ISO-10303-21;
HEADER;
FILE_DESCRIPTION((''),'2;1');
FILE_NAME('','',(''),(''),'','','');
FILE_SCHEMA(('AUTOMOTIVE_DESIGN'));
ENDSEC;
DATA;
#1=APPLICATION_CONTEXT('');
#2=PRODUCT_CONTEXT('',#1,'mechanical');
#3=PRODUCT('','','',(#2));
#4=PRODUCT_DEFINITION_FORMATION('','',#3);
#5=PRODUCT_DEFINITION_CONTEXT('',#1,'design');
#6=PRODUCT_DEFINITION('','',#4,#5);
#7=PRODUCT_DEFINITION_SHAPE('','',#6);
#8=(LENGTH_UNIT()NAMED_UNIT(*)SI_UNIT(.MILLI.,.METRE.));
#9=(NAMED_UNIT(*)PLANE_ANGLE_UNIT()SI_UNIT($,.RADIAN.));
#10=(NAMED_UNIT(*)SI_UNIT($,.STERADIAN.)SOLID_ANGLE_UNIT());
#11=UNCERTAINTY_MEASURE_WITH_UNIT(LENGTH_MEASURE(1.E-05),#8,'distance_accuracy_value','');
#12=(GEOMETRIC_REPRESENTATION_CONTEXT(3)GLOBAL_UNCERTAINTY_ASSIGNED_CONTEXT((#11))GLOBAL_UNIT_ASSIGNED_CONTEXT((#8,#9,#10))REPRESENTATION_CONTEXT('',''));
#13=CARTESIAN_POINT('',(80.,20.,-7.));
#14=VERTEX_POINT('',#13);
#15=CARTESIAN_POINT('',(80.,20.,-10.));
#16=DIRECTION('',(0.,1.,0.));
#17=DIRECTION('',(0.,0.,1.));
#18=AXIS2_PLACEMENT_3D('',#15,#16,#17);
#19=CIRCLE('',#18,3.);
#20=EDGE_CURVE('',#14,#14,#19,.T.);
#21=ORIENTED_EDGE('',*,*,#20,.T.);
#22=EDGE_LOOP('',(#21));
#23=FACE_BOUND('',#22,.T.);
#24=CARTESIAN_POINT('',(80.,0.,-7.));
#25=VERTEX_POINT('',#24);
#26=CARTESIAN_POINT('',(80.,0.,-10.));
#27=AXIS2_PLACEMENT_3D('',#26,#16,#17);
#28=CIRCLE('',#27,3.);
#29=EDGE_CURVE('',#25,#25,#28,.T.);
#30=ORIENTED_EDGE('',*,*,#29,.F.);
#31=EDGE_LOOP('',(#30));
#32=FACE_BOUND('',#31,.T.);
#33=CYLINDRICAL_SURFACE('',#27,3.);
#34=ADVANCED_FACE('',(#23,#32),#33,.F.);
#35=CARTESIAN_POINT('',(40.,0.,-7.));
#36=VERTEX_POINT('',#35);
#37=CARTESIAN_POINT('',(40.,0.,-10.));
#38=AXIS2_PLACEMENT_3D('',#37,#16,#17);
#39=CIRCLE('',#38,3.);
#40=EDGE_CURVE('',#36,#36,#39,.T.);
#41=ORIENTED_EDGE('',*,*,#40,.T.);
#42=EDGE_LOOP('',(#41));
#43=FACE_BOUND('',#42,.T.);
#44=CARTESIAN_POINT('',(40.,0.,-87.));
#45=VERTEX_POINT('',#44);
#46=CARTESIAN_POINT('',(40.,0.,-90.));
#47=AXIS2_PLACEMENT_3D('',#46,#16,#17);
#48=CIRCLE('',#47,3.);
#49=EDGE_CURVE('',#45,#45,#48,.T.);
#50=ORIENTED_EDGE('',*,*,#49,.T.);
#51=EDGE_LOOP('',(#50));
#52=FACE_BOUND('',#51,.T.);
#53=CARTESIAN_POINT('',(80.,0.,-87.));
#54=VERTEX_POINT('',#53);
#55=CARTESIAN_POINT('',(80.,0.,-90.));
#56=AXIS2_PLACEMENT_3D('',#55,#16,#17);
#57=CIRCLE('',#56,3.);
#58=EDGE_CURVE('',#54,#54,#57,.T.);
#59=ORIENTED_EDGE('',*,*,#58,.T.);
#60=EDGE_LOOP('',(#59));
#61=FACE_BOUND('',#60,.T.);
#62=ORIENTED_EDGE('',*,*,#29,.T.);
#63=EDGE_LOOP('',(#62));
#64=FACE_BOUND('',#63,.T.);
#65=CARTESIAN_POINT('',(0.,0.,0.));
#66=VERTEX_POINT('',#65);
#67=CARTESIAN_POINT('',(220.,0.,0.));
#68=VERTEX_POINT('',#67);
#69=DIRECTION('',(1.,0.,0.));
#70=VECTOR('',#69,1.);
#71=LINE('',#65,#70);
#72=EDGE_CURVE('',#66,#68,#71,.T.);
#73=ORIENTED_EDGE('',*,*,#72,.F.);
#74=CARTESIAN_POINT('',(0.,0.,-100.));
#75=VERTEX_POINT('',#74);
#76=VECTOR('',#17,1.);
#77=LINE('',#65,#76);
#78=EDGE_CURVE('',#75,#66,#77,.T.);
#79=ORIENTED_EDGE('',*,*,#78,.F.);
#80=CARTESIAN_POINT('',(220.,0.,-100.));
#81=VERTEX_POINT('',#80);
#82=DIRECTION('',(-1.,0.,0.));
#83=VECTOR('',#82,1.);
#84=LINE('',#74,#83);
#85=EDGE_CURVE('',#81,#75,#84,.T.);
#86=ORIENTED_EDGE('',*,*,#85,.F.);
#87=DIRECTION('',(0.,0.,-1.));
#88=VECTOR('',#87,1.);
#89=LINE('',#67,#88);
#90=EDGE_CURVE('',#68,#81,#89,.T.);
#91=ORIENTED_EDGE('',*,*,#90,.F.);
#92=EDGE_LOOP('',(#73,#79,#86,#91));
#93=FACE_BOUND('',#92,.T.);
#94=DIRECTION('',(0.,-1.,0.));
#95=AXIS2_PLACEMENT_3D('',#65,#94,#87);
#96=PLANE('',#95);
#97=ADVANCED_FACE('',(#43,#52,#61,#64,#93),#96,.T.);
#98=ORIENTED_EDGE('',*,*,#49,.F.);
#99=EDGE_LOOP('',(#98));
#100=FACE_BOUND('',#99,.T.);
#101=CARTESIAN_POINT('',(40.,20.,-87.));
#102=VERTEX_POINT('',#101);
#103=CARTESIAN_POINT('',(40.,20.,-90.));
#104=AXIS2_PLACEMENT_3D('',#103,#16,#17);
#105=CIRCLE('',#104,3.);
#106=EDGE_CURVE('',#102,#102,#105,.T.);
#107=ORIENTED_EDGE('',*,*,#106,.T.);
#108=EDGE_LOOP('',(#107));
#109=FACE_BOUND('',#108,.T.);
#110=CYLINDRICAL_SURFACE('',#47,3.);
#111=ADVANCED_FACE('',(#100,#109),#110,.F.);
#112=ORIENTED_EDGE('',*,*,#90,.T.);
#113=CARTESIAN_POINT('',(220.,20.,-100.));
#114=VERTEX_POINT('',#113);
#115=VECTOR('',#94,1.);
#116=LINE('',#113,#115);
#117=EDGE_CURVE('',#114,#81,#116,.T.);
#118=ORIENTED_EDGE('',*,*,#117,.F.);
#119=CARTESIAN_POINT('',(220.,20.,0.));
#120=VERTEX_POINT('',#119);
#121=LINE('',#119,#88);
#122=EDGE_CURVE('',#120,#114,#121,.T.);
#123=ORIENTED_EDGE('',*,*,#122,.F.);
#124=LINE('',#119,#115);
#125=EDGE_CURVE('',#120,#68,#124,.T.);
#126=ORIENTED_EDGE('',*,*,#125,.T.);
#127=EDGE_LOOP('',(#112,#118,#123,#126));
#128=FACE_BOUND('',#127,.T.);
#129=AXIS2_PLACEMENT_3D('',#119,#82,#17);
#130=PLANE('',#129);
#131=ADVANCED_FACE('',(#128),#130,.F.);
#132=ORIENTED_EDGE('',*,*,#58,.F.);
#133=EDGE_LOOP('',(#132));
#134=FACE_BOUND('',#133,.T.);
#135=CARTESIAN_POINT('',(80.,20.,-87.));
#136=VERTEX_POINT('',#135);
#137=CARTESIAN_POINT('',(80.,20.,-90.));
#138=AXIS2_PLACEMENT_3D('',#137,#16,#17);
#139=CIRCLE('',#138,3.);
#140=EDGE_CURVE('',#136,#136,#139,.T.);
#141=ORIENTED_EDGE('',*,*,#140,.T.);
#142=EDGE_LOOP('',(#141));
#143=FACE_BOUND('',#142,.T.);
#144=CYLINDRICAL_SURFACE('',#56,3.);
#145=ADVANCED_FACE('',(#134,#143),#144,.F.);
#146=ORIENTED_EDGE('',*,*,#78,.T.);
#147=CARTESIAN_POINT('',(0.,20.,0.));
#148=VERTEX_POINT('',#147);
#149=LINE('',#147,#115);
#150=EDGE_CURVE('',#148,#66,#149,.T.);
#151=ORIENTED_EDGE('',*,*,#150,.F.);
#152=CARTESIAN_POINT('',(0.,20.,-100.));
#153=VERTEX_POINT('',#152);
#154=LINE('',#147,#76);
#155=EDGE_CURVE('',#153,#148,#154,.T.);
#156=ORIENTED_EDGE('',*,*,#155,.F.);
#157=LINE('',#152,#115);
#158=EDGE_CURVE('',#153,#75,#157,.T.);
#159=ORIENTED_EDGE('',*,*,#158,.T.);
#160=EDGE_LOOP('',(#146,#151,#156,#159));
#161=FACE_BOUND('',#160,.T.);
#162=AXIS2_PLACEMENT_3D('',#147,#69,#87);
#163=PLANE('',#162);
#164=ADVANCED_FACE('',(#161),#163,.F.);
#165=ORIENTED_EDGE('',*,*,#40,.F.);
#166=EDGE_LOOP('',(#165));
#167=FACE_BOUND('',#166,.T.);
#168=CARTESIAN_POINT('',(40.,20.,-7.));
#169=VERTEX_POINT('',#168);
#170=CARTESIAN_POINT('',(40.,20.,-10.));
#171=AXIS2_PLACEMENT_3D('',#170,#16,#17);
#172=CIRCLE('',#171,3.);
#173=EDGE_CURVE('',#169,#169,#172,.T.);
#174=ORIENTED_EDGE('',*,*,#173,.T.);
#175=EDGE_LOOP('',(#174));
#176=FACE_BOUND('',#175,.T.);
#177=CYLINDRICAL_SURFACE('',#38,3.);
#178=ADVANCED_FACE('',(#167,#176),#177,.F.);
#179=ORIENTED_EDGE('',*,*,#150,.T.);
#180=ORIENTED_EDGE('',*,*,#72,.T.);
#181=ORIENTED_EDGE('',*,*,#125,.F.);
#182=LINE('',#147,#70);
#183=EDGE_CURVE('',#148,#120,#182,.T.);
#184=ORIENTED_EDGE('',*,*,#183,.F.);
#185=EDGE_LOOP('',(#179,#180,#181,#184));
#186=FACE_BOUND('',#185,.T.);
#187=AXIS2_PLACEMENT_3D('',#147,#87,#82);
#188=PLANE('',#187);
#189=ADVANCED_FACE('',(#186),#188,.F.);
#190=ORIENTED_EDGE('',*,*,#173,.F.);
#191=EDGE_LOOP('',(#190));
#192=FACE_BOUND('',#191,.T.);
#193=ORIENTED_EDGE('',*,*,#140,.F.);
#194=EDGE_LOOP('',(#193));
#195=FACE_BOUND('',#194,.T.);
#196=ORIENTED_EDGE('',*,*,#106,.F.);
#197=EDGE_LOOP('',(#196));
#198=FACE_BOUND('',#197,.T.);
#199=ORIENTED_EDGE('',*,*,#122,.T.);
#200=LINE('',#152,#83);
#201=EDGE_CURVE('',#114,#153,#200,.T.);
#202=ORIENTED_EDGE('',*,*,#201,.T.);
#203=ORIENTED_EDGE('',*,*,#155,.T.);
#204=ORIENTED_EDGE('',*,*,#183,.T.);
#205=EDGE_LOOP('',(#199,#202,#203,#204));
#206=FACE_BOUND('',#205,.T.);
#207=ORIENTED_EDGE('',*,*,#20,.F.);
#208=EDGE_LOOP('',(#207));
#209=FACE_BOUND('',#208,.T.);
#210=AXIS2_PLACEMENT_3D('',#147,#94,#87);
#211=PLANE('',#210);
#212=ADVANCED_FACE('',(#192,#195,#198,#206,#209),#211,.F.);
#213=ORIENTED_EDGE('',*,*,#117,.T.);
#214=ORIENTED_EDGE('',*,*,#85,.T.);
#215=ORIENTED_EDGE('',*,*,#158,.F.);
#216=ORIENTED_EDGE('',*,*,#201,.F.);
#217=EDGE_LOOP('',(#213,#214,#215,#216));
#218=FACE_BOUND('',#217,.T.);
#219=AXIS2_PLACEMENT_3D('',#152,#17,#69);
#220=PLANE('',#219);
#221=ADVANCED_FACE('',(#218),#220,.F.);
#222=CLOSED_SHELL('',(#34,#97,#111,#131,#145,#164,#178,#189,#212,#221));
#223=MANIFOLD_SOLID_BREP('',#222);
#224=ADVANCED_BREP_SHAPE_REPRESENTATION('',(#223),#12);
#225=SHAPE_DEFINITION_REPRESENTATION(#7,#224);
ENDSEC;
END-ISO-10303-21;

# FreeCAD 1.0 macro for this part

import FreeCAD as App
import Part
import Sketcher

V = App.Vector


def add_polygon(sketch, points):
    """Adds a closed chain of lines whose ends are joined by coincident constraints."""
    first, n = sketch.GeometryCount, len(points)
    for a, b in zip(points, points[1:] + points[:1]):
        sketch.addGeometry(Part.LineSegment(App.Vector(*a, 0), App.Vector(*b, 0)), False)
    for i in range(n):
        sketch.addConstraint(Sketcher.Constraint("Coincident", first + i, 2, first + (i + 1) % n, 1))

doc = App.newDocument("Part")
body = doc.addObject("PartDesign::Body", "Body")

# Sketch on XZ plane
sketch1 = body.newObject("Sketcher::SketchObject", "Sketch")
sketch1.AttachmentSupport = (doc.getObject("XZ_Plane"), [""])
sketch1.MapMode = "FlatFace"
add_polygon(sketch1, [(0, -100), (0, 0), (220, 0), (220, -100)])  # lines 0-3
sketch1.addConstraint([
    Sketcher.Constraint("Vertical", 0),
    Sketcher.Constraint("Horizontal", 1),
    Sketcher.Constraint("Vertical", 2),
    Sketcher.Constraint("Horizontal", 3),
    Sketcher.Constraint("Coincident", 0, 2, -1, 1),
    Sketcher.Constraint("DistanceX", 1, 1, 1, 2, 220.0),
    Sketcher.Constraint("DistanceY", 0, 1, 0, 2, 100.0),
])
pad1 = body.newObject("PartDesign::Pad", "Pad")
pad1.Profile = sketch1
pad1.Length = 20
pad1.Reversed = True

# Sketch on XZ plane
sketch2 = body.newObject("Sketcher::SketchObject", "Sketch001")
sketch2.AttachmentSupport = (doc.getObject("XZ_Plane"), [""])
sketch2.MapMode = "FlatFace"
sketch2.AttachmentOffset = App.Placement(V(0, 0, -20), App.Rotation())
sketch2.addGeometry([
    Part.Circle(V(40, -90, 0), V(0, 0, 1), 3),
    Part.Circle(V(80, -90, 0), V(0, 0, 1), 3),
    Part.Circle(V(40, -10, 0), V(0, 0, 1), 3),
    Part.Circle(V(80, -10, 0), V(0, 0, 1), 3),
], False)
sketch2.addConstraint([
    Sketcher.Constraint("Equal", 0, 1),
    Sketcher.Constraint("Equal", 1, 2),
    Sketcher.Constraint("Equal", 2, 3),
    Sketcher.Constraint("Horizontal", 0, 3, 1, 3),
    Sketcher.Constraint("Horizontal", 2, 3, 3, 3),
    Sketcher.Constraint("Vertical", 0, 3, 2, 3),
    Sketcher.Constraint("Vertical", 1, 3, 3, 3),
    Sketcher.Constraint("Diameter", 0, 6.0),
    Sketcher.Constraint("DistanceX", -1, 1, 0, 3, 40.0),
    Sketcher.Constraint("DistanceY", 0, 3, -1, 1, 90.0),
    Sketcher.Constraint("DistanceX", -1, 1, 1, 3, 80.0),
    Sketcher.Constraint("DistanceY", 2, 3, -1, 1, 10.0),
])
pocket1 = body.newObject("PartDesign::Pocket", "Pocket")
pocket1.Profile = sketch2
pocket1.Length = 20
pocket1.Reversed = True

doc.recompute()
